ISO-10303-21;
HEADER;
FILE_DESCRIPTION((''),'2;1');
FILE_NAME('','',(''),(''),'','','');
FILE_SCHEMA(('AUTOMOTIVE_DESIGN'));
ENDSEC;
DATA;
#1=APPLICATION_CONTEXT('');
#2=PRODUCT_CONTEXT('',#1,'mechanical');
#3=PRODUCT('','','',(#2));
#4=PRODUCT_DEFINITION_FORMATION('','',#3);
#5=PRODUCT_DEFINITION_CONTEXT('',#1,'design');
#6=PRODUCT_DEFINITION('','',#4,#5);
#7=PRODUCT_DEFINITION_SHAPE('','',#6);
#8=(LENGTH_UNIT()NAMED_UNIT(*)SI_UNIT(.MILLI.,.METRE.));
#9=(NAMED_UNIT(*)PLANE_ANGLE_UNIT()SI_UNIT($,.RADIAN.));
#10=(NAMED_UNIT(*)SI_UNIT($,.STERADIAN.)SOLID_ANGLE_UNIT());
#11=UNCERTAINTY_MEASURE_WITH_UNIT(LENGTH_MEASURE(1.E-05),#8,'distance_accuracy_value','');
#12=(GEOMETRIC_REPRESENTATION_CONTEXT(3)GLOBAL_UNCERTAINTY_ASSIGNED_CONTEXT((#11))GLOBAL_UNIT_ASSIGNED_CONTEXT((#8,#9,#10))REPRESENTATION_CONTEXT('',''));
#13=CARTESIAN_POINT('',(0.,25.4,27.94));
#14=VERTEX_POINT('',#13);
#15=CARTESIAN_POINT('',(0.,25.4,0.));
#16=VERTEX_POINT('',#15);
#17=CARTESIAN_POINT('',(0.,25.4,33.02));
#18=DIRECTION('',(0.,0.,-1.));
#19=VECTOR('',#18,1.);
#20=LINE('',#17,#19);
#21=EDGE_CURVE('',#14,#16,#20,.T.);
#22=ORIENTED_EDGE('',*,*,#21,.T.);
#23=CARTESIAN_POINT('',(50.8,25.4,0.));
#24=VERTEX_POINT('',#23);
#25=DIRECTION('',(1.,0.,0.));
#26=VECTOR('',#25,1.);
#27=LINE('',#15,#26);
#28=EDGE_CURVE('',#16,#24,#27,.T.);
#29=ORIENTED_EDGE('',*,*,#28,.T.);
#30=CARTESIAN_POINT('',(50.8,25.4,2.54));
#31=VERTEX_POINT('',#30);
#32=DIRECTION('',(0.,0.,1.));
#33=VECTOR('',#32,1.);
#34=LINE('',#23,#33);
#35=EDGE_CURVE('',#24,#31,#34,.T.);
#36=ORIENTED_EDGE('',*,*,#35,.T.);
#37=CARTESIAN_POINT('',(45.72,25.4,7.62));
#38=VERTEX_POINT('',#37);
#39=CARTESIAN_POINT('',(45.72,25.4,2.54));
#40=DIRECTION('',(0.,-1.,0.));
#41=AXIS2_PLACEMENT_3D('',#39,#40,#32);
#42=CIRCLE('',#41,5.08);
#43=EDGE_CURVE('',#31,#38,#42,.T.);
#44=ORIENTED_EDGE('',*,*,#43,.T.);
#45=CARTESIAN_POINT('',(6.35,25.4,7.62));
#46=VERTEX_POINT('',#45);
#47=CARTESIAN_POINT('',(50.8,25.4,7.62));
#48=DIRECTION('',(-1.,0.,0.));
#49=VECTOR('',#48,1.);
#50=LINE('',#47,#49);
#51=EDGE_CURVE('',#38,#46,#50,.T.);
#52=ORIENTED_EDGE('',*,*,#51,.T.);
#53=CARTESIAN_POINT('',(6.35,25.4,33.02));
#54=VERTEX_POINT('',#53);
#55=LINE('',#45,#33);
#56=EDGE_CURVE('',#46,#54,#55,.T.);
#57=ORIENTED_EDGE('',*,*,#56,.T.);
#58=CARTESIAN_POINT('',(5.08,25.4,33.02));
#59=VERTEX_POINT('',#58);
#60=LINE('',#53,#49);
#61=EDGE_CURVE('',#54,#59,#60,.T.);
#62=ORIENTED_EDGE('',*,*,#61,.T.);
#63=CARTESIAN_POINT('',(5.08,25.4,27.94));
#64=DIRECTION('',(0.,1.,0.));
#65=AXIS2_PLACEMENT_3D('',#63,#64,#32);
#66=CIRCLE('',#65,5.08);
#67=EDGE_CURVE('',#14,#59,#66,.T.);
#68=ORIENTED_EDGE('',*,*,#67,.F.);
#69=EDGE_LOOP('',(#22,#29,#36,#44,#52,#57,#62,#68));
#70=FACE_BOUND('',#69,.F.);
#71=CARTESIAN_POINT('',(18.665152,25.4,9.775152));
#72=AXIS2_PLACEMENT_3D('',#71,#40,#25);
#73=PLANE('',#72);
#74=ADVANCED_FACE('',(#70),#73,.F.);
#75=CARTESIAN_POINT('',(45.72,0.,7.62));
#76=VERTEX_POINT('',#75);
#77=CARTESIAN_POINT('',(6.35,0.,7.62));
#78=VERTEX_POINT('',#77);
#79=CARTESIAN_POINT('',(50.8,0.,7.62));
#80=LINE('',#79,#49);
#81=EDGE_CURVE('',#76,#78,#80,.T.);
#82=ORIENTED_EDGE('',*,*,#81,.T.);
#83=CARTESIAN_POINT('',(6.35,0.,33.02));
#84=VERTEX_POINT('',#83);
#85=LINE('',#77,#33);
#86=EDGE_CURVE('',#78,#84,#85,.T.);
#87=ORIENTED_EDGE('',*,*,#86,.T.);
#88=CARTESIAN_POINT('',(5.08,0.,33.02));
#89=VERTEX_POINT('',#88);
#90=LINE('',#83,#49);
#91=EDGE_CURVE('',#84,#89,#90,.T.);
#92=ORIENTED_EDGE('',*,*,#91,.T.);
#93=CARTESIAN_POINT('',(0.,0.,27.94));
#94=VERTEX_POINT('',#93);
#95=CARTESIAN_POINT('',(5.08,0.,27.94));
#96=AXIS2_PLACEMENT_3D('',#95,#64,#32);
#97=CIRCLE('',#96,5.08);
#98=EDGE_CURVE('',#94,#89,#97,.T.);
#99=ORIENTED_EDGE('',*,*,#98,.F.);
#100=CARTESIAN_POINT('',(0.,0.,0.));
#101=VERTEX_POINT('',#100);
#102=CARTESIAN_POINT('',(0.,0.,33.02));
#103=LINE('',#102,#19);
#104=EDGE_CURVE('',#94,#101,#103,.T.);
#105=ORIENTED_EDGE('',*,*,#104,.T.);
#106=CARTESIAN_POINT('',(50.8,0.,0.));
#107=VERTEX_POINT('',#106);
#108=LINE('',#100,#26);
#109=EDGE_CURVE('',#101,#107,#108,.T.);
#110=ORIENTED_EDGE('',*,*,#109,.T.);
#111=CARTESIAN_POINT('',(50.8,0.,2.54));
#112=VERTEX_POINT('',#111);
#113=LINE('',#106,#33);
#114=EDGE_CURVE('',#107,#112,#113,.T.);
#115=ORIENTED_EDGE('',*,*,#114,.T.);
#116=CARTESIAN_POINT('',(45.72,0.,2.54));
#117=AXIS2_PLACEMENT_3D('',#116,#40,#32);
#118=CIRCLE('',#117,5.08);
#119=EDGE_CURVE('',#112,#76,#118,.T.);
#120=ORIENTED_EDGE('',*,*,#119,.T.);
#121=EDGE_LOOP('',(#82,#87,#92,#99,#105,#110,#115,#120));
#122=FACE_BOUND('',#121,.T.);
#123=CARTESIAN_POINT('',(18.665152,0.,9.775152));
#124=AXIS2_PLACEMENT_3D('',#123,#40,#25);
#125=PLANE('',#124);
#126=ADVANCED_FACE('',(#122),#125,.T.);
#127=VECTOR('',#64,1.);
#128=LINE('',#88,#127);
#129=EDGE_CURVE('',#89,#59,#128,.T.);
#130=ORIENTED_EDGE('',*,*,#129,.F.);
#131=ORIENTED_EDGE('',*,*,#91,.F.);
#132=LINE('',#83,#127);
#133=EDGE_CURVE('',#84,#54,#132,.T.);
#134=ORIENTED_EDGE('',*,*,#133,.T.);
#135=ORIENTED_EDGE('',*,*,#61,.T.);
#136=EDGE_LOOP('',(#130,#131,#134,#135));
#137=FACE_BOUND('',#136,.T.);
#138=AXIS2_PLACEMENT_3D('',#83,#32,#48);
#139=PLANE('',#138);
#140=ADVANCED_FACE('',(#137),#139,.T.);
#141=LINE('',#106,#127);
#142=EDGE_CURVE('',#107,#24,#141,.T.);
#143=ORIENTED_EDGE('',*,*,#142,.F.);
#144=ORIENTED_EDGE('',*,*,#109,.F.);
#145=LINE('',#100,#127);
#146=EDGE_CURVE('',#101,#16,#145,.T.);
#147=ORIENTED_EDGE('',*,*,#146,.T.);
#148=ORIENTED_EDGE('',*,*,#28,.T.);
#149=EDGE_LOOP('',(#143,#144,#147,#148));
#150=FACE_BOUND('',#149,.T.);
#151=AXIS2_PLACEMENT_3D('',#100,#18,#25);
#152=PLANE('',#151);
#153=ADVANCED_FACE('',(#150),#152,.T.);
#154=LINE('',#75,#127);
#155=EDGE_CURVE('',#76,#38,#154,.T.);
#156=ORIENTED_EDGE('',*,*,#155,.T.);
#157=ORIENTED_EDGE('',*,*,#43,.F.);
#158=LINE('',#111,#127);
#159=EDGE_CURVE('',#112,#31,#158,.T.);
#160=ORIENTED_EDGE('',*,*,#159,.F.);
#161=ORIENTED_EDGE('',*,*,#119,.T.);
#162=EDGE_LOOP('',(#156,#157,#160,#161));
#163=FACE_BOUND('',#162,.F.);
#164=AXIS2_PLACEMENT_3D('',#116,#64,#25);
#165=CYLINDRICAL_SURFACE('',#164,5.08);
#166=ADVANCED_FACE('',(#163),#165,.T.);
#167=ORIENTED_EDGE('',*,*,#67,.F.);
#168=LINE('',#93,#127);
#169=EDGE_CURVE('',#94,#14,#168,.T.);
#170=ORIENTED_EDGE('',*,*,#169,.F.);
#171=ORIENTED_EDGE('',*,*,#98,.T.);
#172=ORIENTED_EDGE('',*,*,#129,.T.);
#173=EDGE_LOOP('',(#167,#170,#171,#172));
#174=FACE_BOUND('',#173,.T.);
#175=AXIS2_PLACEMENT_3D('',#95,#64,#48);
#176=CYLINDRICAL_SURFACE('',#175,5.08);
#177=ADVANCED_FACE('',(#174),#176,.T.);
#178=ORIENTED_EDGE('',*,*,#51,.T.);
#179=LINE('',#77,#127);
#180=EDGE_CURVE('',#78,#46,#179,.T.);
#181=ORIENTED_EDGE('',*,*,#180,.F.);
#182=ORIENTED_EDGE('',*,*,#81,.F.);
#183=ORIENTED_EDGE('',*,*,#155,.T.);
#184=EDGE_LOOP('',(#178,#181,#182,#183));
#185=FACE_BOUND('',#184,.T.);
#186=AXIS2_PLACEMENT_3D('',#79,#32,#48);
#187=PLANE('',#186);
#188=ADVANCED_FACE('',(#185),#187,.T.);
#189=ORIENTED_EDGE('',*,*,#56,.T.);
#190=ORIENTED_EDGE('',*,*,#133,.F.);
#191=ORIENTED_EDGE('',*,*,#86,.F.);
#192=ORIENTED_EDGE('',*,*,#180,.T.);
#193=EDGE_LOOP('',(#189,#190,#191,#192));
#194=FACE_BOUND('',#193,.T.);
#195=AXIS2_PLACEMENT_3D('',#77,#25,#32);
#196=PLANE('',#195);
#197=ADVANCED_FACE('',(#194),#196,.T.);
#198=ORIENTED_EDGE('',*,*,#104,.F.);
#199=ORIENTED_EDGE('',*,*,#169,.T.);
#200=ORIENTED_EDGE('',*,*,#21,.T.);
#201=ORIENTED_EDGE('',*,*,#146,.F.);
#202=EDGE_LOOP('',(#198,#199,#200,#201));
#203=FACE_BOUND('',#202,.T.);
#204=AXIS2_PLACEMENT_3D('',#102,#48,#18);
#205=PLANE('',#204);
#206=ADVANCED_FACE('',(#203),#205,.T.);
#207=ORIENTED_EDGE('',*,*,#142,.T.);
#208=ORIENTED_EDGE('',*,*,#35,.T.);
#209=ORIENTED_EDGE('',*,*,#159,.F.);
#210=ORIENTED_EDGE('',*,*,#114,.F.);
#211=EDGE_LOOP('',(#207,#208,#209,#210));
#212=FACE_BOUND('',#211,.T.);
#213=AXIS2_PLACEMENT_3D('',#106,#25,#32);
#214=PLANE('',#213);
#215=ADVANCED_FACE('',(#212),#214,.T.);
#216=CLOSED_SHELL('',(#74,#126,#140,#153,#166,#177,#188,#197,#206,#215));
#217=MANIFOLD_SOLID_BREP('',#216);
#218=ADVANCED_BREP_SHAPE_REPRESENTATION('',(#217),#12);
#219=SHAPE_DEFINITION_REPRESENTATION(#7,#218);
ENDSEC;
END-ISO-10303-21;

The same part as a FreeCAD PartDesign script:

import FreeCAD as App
import Part
import Sketcher
Q = App.Units.Quantity


def edges_at(feature, points):
    """Names of the edges that pass closest to the given points."""
    edges = feature.Shape.Edges
    near = lambda p: min(range(len(edges)), key=lambda i: edges[i].distToShape(Part.Vertex(*p))[0])
    return sorted({f"Edge{near(p) + 1}" for p in points})


def add_polygon(sketch, points):
    """Adds a closed chain of lines whose ends are joined by coincident constraints."""
    first, n = sketch.GeometryCount, len(points)
    for a, b in zip(points, points[1:] + points[:1]):
        sketch.addGeometry(Part.LineSegment(App.Vector(*a, 0), App.Vector(*b, 0)), False)
    for i in range(n):
        sketch.addConstraint(Sketcher.Constraint("Coincident", first + i, 2, first + (i + 1) % n, 1))

doc = App.newDocument("Part")
body = doc.addObject("PartDesign::Body", "Body")

# Sketch on XZ plane
sketch1 = body.newObject("Sketcher::SketchObject", "Sketch")
sketch1.AttachmentSupport = (doc.getObject("XZ_Plane"), [""])
sketch1.MapMode = "FlatFace"
add_polygon(sketch1, [(0, 33), (0, 0), (51, 0), (51, 8), (6, 8), (6, 33)])  # lines 0-5
sketch1.addConstraint([
    Sketcher.Constraint("Vertical", 0),
    Sketcher.Constraint("Horizontal", 1),
    Sketcher.Constraint("Vertical", 2),
    Sketcher.Constraint("Horizontal", 3),
    Sketcher.Constraint("Vertical", 4),
    Sketcher.Constraint("Horizontal", 5),
    Sketcher.Constraint("Coincident", 0, 2, -1, 1),
    Sketcher.Constraint("DistanceX", 1, 1, 1, 2, Q("2 in")),
    Sketcher.Constraint("DistanceY", 4, 1, 4, 2, Q("1 in")),
    Sketcher.Constraint("DistanceY", 0, 2, 0, 1, Q("1.3 in")),
    Sketcher.Constraint("DistanceX", 3, 2, 3, 1, Q("1.75 in")),
])
pad1 = body.newObject("PartDesign::Pad", "Pad")
pad1.Profile = sketch1
pad1.Length = Q("1 in")
pad1.Reversed = True
doc.recompute()

fillet = body.newObject("PartDesign::Fillet", "Fillet")
fillet.Base = (pad1, edges_at(pad1, [(0, 12.7, 33.02), (50.8, 12.7, 7.62)]))
fillet.Radius = Q("0.2 in")

doc.recompute()
